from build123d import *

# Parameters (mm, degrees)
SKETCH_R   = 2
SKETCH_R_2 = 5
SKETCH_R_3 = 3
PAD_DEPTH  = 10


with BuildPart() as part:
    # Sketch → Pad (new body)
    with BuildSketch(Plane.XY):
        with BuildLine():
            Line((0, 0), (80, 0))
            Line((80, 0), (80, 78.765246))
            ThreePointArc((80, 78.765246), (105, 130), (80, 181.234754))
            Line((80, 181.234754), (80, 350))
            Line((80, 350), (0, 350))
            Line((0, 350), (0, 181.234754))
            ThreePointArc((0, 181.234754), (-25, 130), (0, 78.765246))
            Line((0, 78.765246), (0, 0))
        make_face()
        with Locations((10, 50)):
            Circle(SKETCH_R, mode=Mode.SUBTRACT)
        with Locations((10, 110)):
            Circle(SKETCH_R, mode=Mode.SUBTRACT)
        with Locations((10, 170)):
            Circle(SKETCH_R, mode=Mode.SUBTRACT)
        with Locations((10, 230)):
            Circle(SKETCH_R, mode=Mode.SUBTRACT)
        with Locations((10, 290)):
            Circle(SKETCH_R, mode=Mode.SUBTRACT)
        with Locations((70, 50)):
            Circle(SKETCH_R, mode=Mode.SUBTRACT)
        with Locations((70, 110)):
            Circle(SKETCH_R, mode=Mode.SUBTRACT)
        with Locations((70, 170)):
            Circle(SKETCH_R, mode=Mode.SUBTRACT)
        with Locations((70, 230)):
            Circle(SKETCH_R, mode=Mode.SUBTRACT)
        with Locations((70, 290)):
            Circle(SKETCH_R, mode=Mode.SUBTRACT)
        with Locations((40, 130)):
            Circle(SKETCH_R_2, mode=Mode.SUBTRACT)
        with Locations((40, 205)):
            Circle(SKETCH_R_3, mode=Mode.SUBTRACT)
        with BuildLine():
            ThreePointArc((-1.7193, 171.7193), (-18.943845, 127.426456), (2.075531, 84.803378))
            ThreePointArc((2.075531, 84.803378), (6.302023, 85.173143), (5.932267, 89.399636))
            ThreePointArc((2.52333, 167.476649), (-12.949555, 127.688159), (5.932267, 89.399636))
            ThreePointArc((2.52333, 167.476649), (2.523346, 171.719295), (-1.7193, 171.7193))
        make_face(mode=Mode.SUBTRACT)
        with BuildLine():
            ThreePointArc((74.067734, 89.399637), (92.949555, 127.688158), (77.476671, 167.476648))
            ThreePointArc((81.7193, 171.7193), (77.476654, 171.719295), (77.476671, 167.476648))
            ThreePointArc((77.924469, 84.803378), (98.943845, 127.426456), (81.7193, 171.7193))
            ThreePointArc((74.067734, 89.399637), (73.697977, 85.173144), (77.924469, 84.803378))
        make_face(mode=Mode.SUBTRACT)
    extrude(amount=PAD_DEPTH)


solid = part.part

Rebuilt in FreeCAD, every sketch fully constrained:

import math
import FreeCAD as App
import Part
import Sketcher
from FreeCAD import Vector
Q = App.Units.Quantity

doc = App.newDocument("Part")
body = doc.addObject("PartDesign::Body", "Body")

# Sketch on XY plane
sketch1 = body.newObject("Sketcher::SketchObject", "Sketch")
sketch1.AttachmentSupport = (doc.getObject("XY_Plane"), [""])
sketch1.MapMode = "FlatFace"
sketch1.addGeometry([
    Part.LineSegment(Vector(0, 0, 0), Vector(80, 0, 0)),  # 0
    Part.LineSegment(Vector(80, 0, 0), Vector(80, 78.765246, 0)),  # 1
    Part.ArcOfCircle(Part.Circle(Vector(40, 130, 0), Vector(0, 0, 1), 65), math.radians(-52.020127), math.radians(52.020127)),  # 2
    Part.LineSegment(Vector(80, 181.234754, 0), Vector(80, 350, 0)),  # 3
    Part.LineSegment(Vector(80, 350, 0), Vector(0, 350, 0)),  # 4
    Part.LineSegment(Vector(0, 350, 0), Vector(0, 181.234754, 0)),  # 5
    Part.ArcOfCircle(Part.Circle(Vector(40, 130, 0), Vector(0, 0, 1), 65), math.radians(127.979873), math.radians(232.020127)),  # 6
    Part.LineSegment(Vector(0, 78.765246, 0), Vector(0, 0, 0)),  # 7
    Part.Circle(Vector(10, 50, 0), Vector(0, 0, 1), 2),  # 8
    Part.ArcOfCircle(Part.Circle(Vector(40, 130, 0), Vector(0, 0, 1), 59), math.radians(135), math.radians(230)),  # 9
    Part.ArcOfCircle(Part.Circle(Vector(0.402021, 169.59798, 0), Vector(0, 0, 1), 3), math.radians(-45.00029), math.radians(135.000007)),  # 10
    Part.ArcOfCircle(Part.Circle(Vector(40.000001, 130, 0), Vector(0, 0, 1), 53), math.radians(135.000017), math.radians(230.000014)),  # 11
    Part.ArcOfCircle(Part.Circle(Vector(4.003894, 87.101511, 0), Vector(0, 0, 1), 3), math.radians(-130.000007), math.radians(49.999749)),  # 12
    Part.Circle(Vector(10, 110, 0), Vector(0, 0, 1), 2),  # 13
    Part.Circle(Vector(40, 130, 0), Vector(0, 0, 1), 5),  # 14
    Part.Circle(Vector(70, 50, 0), Vector(0, 0, 1), 2),  # 15
    Part.Circle(Vector(70, 110, 0), Vector(0, 0, 1), 2),  # 16
    Part.ArcOfCircle(Part.Circle(Vector(75.996106, 87.101512, 0), Vector(0, 0, 1), 3), math.radians(130.000238), math.radians(309.999993)),  # 17
    Part.ArcOfCircle(Part.Circle(Vector(40, 130, 0), Vector(0, 0, 1), 53), math.radians(-50.000013), math.radians(44.999982)),  # 18
    Part.ArcOfCircle(Part.Circle(Vector(79.597979, 169.59798, 0), Vector(0, 0, 1), 3), math.radians(44.999993), math.radians(225.000317)),  # 19
    Part.ArcOfCircle(Part.Circle(Vector(40, 130, 0), Vector(0, 0, 1), 59), math.radians(-50), math.radians(45)),  # 20
    Part.Circle(Vector(10, 170, 0), Vector(0, 0, 1), 2),  # 21
    Part.Circle(Vector(10, 230, 0), Vector(0, 0, 1), 2),  # 22
    Part.Circle(Vector(40, 205, 0), Vector(0, 0, 1), 3),  # 23
    Part.Circle(Vector(10, 290, 0), Vector(0, 0, 1), 2),  # 24
    Part.Circle(Vector(70, 170, 0), Vector(0, 0, 1), 2),  # 25
    Part.Circle(Vector(70, 230, 0), Vector(0, 0, 1), 2),  # 26
    Part.Circle(Vector(70, 290, 0), Vector(0, 0, 1), 2),  # 27
], False)
sketch1.addConstraint([
    Sketcher.Constraint("Coincident", 0, 2, 1, 1),
    Sketcher.Constraint("Coincident", 1, 2, 2, 1),
    Sketcher.Constraint("Coincident", 2, 2, 3, 1),
    Sketcher.Constraint("Coincident", 3, 2, 4, 1),
    Sketcher.Constraint("Coincident", 4, 2, 5, 1),
    Sketcher.Constraint("Coincident", 5, 2, 6, 1),
    Sketcher.Constraint("Coincident", 6, 2, 7, 1),
    Sketcher.Constraint("Coincident", 7, 2, 0, 1),
    Sketcher.Constraint("Tangent", 9, 1, 10, 2),
    Sketcher.Constraint("Coincident", 10, 1, 11, 1),
    Sketcher.Constraint("Coincident", 11, 2, 12, 2),
    Sketcher.Constraint("Tangent", 12, 1, 9, 2),
    Sketcher.Constraint("Coincident", 17, 1, 18, 1),
    Sketcher.Constraint("Coincident", 18, 2, 19, 2),
    Sketcher.Constraint("Tangent", 19, 1, 20, 2),
    Sketcher.Constraint("Tangent", 20, 1, 17, 2),
    Sketcher.Constraint("Horizontal", 0),
    Sketcher.Constraint("Vertical", 1),
    Sketcher.Constraint("Vertical", 3),
    Sketcher.Constraint("Horizontal", 4),
    Sketcher.Constraint("Vertical", 5),
    Sketcher.Constraint("Vertical", 7),
    Sketcher.Constraint("Coincident", 7, 2, -1, 1),
    Sketcher.Constraint("Coincident", 6, 3, 2, 3),
    Sketcher.Constraint("Coincident", 9, 3, 2, 3),
    Sketcher.Constraint("Coincident", 11, 3, 2, 3),
    Sketcher.Constraint("Coincident", 14, 3, 2, 3),
    Sketcher.Constraint("Coincident", 18, 3, 2, 3),
    Sketcher.Constraint("Coincident", 20, 3, 2, 3),
    Sketcher.Constraint("Equal", 2, 6),
    Sketcher.Constraint("Equal", 8, 13),
    Sketcher.Constraint("Equal", 13, 15),
    Sketcher.Constraint("Equal", 15, 16),
    Sketcher.Constraint("Equal", 12, 17),
    Sketcher.Constraint("Equal", 11, 18),
    Sketcher.Constraint("Equal", 16, 21),
    Sketcher.Constraint("Equal", 21, 22),
    Sketcher.Constraint("Equal", 19, 23),
    Sketcher.Constraint("Equal", 22, 24),
    Sketcher.Constraint("Equal", 24, 25),
    Sketcher.Constraint("Equal", 25, 26),
    Sketcher.Constraint("Equal", 26, 27),
    Sketcher.Constraint("PointOnObject", 4, 2, -2),
    Sketcher.Constraint("Horizontal", 8, 3, 15, 3),
    Sketcher.Constraint("Horizontal", 13, 3, 16, 3),
    Sketcher.Constraint("Horizontal", 12, 3, 17, 3),
    Sketcher.Constraint("Horizontal", 10, 3, 19, 3),
    Sketcher.Constraint("Horizontal", 21, 3, 25, 3),
    Sketcher.Constraint("Horizontal", 22, 3, 26, 3),
    Sketcher.Constraint("Horizontal", 24, 3, 27, 3),
    Sketcher.Constraint("Horizontal", 2, 2, 5, 2),
    Sketcher.Constraint("Horizontal", 1, 2, 6, 2),
    Sketcher.Constraint("Horizontal", 11, 2, 17, 1),
    Sketcher.Constraint("Horizontal", 10, 1, 18, 2),
    Sketcher.Constraint("Vertical", 8, 3, 13, 3),
    Sketcher.Constraint("Vertical", 15, 3, 16, 3),
    Sketcher.Constraint("Vertical", 13, 3, 21, 3),
    Sketcher.Constraint("Vertical", 21, 3, 22, 3),
    Sketcher.Constraint("Vertical", 20, 3, 23, 3),
    Sketcher.Constraint("Vertical", 22, 3, 24, 3),
    Sketcher.Constraint("Vertical", 16, 3, 25, 3),
    Sketcher.Constraint("Vertical", 25, 3, 26, 3),
    Sketcher.Constraint("Vertical", 26, 3, 27, 3),
    Sketcher.Constraint("Diameter", 8, Q("4 mm")),
    Sketcher.Constraint("Diameter", 14, Q("10 mm")),
    Sketcher.Constraint("Diameter", 23, Q("6 mm")),
    Sketcher.Constraint("Radius", 2, Q("65 mm")),
    Sketcher.Constraint("Radius", 9, Q("59 mm")),
    Sketcher.Constraint("DistanceX", 0, 1, 0, 2, Q("80 mm")),
    Sketcher.Constraint("DistanceY", -1, 1, 2, 3, Q("130 mm")),
    Sketcher.Constraint("DistanceX", -1, 1, 8, 3, Q("10 mm")),
    Sketcher.Constraint("DistanceY", -1, 1, 8, 3, Q("50 mm")),
    Sketcher.Constraint("DistanceY", -1, 1, 13, 3, Q("110 mm")),
    Sketcher.Constraint("DistanceX", -1, 1, 15, 3, Q("70 mm")),
    Sketcher.Constraint("DistanceY", -1, 1, 21, 3, Q("170 mm")),
    Sketcher.Constraint("DistanceY", -1, 1, 22, 3, Q("230 mm")),
    Sketcher.Constraint("DistanceY", -1, 1, 23, 3, Q("205 mm")),
    Sketcher.Constraint("DistanceY", -1, 1, 24, 3, Q("290 mm")),
    Sketcher.Constraint("DistanceY", -1, 1, 3, 2, Q("350 mm")),
    Sketcher.Constraint("DistanceX", 9, 1, -1, 1, Q("1.7193 mm")),
    Sketcher.Constraint("DistanceY", -1, 1, 12, 3, Q("87.101511 mm")),
    Sketcher.Constraint("DistanceX", -1, 1, 10, 1, Q("2.52333 mm")),
    Sketcher.Constraint("DistanceY", 6, 2, 11, 2, Q("10.63439 mm")),
])
pad1 = body.newObject("PartDesign::Pad", "Pad")
pad1.Profile = sketch1
pad1.Length = 10

doc.recompute()
